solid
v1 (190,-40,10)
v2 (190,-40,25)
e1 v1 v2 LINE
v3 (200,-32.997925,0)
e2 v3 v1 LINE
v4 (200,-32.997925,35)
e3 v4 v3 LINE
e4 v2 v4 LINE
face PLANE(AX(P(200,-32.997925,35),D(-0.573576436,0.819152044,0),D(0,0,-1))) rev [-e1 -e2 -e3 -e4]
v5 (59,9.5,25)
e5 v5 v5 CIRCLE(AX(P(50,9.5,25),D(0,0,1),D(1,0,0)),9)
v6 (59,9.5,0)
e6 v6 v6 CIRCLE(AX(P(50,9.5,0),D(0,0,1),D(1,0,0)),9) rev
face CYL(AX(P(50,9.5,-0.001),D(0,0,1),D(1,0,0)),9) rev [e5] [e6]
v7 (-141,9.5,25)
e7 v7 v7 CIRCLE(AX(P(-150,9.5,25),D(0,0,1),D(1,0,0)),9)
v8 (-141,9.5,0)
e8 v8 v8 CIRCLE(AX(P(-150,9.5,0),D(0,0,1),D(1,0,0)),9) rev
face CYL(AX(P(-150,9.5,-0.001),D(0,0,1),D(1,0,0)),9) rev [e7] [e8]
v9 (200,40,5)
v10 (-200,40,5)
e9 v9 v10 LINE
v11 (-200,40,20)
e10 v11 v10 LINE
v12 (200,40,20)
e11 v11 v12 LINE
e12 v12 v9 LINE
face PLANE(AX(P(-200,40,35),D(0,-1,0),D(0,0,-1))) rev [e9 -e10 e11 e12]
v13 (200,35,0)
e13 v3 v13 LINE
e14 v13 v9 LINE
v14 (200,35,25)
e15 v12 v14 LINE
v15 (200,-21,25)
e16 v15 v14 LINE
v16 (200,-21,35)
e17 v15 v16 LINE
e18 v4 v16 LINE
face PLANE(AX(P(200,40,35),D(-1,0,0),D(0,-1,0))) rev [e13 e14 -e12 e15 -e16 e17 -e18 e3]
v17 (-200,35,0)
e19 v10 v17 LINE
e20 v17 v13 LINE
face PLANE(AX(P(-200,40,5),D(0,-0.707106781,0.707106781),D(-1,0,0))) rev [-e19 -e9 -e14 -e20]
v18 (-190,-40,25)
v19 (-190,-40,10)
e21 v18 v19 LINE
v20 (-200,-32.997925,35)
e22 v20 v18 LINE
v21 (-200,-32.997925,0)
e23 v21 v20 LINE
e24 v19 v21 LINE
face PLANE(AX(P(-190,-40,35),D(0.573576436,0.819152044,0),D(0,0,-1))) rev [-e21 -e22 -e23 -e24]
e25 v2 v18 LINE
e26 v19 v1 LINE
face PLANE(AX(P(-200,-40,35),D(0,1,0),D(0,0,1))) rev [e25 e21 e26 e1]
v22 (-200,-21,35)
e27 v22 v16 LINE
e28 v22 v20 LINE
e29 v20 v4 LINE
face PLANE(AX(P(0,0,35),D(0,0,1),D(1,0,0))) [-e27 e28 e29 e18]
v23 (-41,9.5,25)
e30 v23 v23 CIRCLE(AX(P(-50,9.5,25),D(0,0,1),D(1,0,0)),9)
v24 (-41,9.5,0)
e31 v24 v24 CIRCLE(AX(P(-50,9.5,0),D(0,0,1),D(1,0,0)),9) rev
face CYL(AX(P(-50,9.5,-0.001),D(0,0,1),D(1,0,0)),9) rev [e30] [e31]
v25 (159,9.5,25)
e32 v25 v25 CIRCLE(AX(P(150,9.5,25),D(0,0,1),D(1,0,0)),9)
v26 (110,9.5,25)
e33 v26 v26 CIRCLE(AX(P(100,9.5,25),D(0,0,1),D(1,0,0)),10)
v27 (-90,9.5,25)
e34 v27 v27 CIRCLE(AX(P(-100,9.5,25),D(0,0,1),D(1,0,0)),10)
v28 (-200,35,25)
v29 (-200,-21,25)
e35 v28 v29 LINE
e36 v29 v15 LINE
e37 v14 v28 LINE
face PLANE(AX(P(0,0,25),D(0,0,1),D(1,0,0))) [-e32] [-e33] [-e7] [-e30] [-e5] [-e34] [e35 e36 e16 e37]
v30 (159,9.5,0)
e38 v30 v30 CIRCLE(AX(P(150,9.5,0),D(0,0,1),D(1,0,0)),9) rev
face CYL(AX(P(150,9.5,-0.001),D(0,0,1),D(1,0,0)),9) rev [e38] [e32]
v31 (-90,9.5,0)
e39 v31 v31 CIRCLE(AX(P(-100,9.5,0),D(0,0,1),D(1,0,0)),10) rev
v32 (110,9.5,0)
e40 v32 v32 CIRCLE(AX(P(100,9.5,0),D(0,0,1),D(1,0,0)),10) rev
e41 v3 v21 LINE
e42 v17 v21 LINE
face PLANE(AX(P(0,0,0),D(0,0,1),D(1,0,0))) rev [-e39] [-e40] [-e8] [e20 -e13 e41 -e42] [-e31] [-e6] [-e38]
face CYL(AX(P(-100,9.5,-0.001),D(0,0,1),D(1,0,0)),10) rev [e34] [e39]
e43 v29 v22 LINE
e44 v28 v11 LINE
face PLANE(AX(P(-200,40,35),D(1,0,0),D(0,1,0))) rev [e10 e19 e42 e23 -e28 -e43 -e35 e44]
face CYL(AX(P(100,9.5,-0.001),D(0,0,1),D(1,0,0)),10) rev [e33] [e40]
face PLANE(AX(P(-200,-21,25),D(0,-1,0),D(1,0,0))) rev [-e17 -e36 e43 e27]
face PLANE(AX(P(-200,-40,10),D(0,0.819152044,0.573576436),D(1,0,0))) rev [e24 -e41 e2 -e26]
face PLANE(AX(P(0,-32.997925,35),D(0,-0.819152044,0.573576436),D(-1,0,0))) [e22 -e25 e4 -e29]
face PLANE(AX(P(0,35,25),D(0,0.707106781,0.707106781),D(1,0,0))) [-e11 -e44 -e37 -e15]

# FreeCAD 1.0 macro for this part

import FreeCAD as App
import Part
import Sketcher
from FreeCAD import Vector
Q = App.Units.Quantity


def edges_at(feature, points):
    """Names of the edges that pass closest to the given points."""
    edges = feature.Shape.Edges
    near = lambda p: min(range(len(edges)), key=lambda i: edges[i].distToShape(Part.Vertex(*p))[0])
    return sorted({f"Edge{near(p) + 1}" for p in points})


def add_polygon(sketch, points):
    """Adds a closed chain of lines whose ends are joined by coincident constraints."""
    first, n = sketch.GeometryCount, len(points)
    for a, b in zip(points, points[1:] + points[:1]):
        sketch.addGeometry(Part.LineSegment(App.Vector(*a, 0), App.Vector(*b, 0)), False)
    for i in range(n):
        sketch.addConstraint(Sketcher.Constraint("Coincident", first + i, 2, first + (i + 1) % n, 1))

doc = App.newDocument("Part")
params = doc.addObject("Spreadsheet::Sheet", "Params")
for row, (alias, value) in enumerate([
    ("sketch1_width", "400 mm"),
    ("sketch1_height", "80 mm"),
    ("pad1_length", "35 mm"),
    ("sketch2_width", "400 mm"),
    ("sketch2_height", "61 mm"),
    ("pocket1_length", "10 mm"),
    ("chamfer_size", "5 mm"),
    ("chamfer2_size", "10 mm"),
    ("chamfer2_size2", "7.002075 mm"),
    ("chamfer3_size", "10 mm"),
    ("chamfer3_size2", "7.002075 mm"),
    ("chamfer4_size", "10 mm"),
    ("chamfer4_size2", "7.002075 mm"),
    ("chamfer5_size", "10 mm"),
    ("chamfer5_size2", "7.002075 mm"),
    ("sketch3_diameter", "18 mm"),
    ("sketch4_diameter", "20 mm"),
    ("sketch5_diameter", "18 mm"),
    ("sketch6_diameter", "18 mm"),
    ("sketch7_diameter", "20 mm"),
    ("sketch8_diameter", "18 mm"),
], start=1):
    params.set(f"A{row}", alias)
    params.set(f"B{row}", "=" + value)
    params.setAlias(f"B{row}", alias)

body = doc.addObject("PartDesign::Body", "Body")

sketch1 = body.newObject("Sketcher::SketchObject", "Sketch")
sketch1.AttachmentSupport = (doc.getObject("XY_Plane"), [""])
sketch1.MapMode = "FlatFace"
add_polygon(sketch1, [(-200, 40), (-200, -40), (200, -40), (200, 40)])
sketch1.addConstraint(Sketcher.Constraint("Vertical", 0))
sketch1.addConstraint(Sketcher.Constraint("Horizontal", 1))
sketch1.addConstraint(Sketcher.Constraint("Vertical", 2))
sketch1.addConstraint(Sketcher.Constraint("Horizontal", 3))
sketch1.addConstraint(Sketcher.Constraint("Symmetric", 0, 2, 2, 2, -1, 1))
sketch1.addConstraint(Sketcher.Constraint("DistanceX", 1, 1, 1, 2, Q("400 mm")))
sketch1.addConstraint(Sketcher.Constraint("DistanceY", 0, 2, 0, 1, Q("80 mm")))
sketch1.setExpression("Constraints[9]", "Params.sketch1_width")
sketch1.setExpression("Constraints[10]", "Params.sketch1_height")
pad1 = body.newObject("PartDesign::Pad", "Pad")
pad1.Profile = sketch1
pad1.setExpression("Length", "Params.pad1_length")

sketch2 = body.newObject("Sketcher::SketchObject", "Sketch001")
sketch2.AttachmentSupport = (doc.getObject("XY_Plane"), [""])
sketch2.MapMode = "FlatFace"
sketch2.AttachmentOffset = App.Placement(Vector(0, 0, 35), App.Rotation())
add_polygon(sketch2, [(-200, 40), (-200, -21), (200, -21), (200, 40)])
sketch2.addConstraint(Sketcher.Constraint("Vertical", 0))
sketch2.addConstraint(Sketcher.Constraint("Horizontal", 1))
sketch2.addConstraint(Sketcher.Constraint("Vertical", 2))
sketch2.addConstraint(Sketcher.Constraint("Horizontal", 3))
sketch2.addConstraint(Sketcher.Constraint("DistanceX", 1, 1, 1, 2, Q("400 mm")))
sketch2.addConstraint(Sketcher.Constraint("DistanceY", 0, 2, 0, 1, Q("61 mm")))
sketch2.addConstraint(Sketcher.Constraint("DistanceX", 0, 2, -1, 1, Q("200 mm")))
sketch2.addConstraint(Sketcher.Constraint("DistanceY", 0, 2, -1, 1, Q("21 mm")))
sketch2.setExpression("Constraints[8]", "Params.sketch2_width")
sketch2.setExpression("Constraints[9]", "Params.sketch2_height")
pocket1 = body.newObject("PartDesign::Pocket", "Pocket")
pocket1.Profile = sketch2
pocket1.setExpression("Length", "Params.pocket1_length")
doc.recompute()

chamfer = body.newObject("PartDesign::Chamfer", "Chamfer")
chamfer.Base = (pocket1, edges_at(pocket1, [(0, 40, 25), (0, 40, 0)]))
chamfer.setExpression("Size", "Params.chamfer_size")
doc.recompute()

chamfer2 = body.newObject("PartDesign::Chamfer", "Chamfer001")
chamfer2.Base = (chamfer, edges_at(chamfer, [(0, -40, 35)]))
chamfer2.ChamferType = "Two distances"
chamfer2.setExpression("Size", "Params.chamfer2_size")
chamfer2.setExpression("Size2", "Params.chamfer2_size2")
doc.recompute()

chamfer3 = body.newObject("PartDesign::Chamfer", "Chamfer002")
chamfer3.Base = (chamfer2, edges_at(chamfer2, [(0, -40, 0)]))
chamfer3.ChamferType = "Two distances"
chamfer3.setExpression("Size", "Params.chamfer3_size")
chamfer3.setExpression("Size2", "Params.chamfer3_size2")
doc.recompute()

chamfer4 = body.newObject("PartDesign::Chamfer", "Chamfer003")
chamfer4.Base = (chamfer3, edges_at(chamfer3, [(-200, -40, 17.5)]))
chamfer4.ChamferType = "Two distances"
chamfer4.setExpression("Size", "Params.chamfer4_size")
chamfer4.setExpression("Size2", "Params.chamfer4_size2")
chamfer4.FlipDirection = True
doc.recompute()

chamfer5 = body.newObject("PartDesign::Chamfer", "Chamfer004")
chamfer5.Base = (chamfer4, edges_at(chamfer4, [(200, -40, 17.5)]))
chamfer5.ChamferType = "Two distances"
chamfer5.setExpression("Size", "Params.chamfer5_size")
chamfer5.setExpression("Size2", "Params.chamfer5_size2")

sketch3 = body.newObject("Sketcher::SketchObject", "Sketch002")
sketch3.AttachmentSupport = (doc.getObject("XY_Plane"), [""])
sketch3.MapMode = "FlatFace"
sketch3.AttachmentOffset = App.Placement(Vector(0, 0, 25), App.Rotation())
sketch3.addGeometry(Part.Circle(Vector(-150, 9.5, 0), Vector(0, 0, 1), 9), False)
sketch3.addConstraint(Sketcher.Constraint("Diameter", 0, Q("18 mm")))
sketch3.addConstraint(Sketcher.Constraint("DistanceX", 0, 3, -1, 1, Q("150 mm")))
sketch3.addConstraint(Sketcher.Constraint("DistanceY", -1, 1, 0, 3, Q("9.5 mm")))
sketch3.setExpression("Constraints[0]", "Params.sketch3_diameter")
pocket2 = body.newObject("PartDesign::Pocket", "Pocket001")
pocket2.Profile = sketch3
pocket2.Type = "UpToFirst"

sketch4 = body.newObject("Sketcher::SketchObject", "Sketch003")
sketch4.AttachmentSupport = (doc.getObject("XY_Plane"), [""])
sketch4.MapMode = "FlatFace"
sketch4.AttachmentOffset = App.Placement(Vector(0, 0, 25), App.Rotation())
sketch4.addGeometry(Part.Circle(Vector(-100, 9.5, 0), Vector(0, 0, 1), 10), False)
sketch4.addConstraint(Sketcher.Constraint("Diameter", 0, Q("20 mm")))
sketch4.addConstraint(Sketcher.Constraint("DistanceX", 0, 3, -1, 1, Q("100 mm")))
sketch4.addConstraint(Sketcher.Constraint("DistanceY", -1, 1, 0, 3, Q("9.5 mm")))
sketch4.setExpression("Constraints[0]", "Params.sketch4_diameter")
pocket3 = body.newObject("PartDesign::Pocket", "Pocket002")
pocket3.Profile = sketch4
pocket3.Type = "UpToFirst"

sketch5 = body.newObject("Sketcher::SketchObject", "Sketch004")
sketch5.AttachmentSupport = (doc.getObject("XY_Plane"), [""])
sketch5.MapMode = "FlatFace"
sketch5.AttachmentOffset = App.Placement(Vector(0, 0, 25), App.Rotation())
sketch5.addGeometry(Part.Circle(Vector(-50, 9.5, 0), Vector(0, 0, 1), 9), False)
sketch5.addConstraint(Sketcher.Constraint("Diameter", 0, Q("18 mm")))
sketch5.addConstraint(Sketcher.Constraint("DistanceX", 0, 3, -1, 1, Q("50 mm")))
sketch5.addConstraint(Sketcher.Constraint("DistanceY", -1, 1, 0, 3, Q("9.5 mm")))
sketch5.setExpression("Constraints[0]", "Params.sketch5_diameter")
pocket4 = body.newObject("PartDesign::Pocket", "Pocket003")
pocket4.Profile = sketch5
pocket4.Type = "UpToFirst"

sketch6 = body.newObject("Sketcher::SketchObject", "Sketch005")
sketch6.AttachmentSupport = (doc.getObject("XY_Plane"), [""])
sketch6.MapMode = "FlatFace"
sketch6.AttachmentOffset = App.Placement(Vector(0, 0, 25), App.Rotation())
sketch6.addGeometry(Part.Circle(Vector(50, 9.5, 0), Vector(0, 0, 1), 9), False)
sketch6.addConstraint(Sketcher.Constraint("Diameter", 0, Q("18 mm")))
sketch6.addConstraint(Sketcher.Constraint("DistanceX", -1, 1, 0, 3, Q("50 mm")))
sketch6.addConstraint(Sketcher.Constraint("DistanceY", -1, 1, 0, 3, Q("9.5 mm")))
sketch6.setExpression("Constraints[0]", "Params.sketch6_diameter")
pocket5 = body.newObject("PartDesign::Pocket", "Pocket004")
pocket5.Profile = sketch6
pocket5.Type = "UpToFirst"

sketch7 = body.newObject("Sketcher::SketchObject", "Sketch006")
sketch7.AttachmentSupport = (doc.getObject("XY_Plane"), [""])
sketch7.MapMode = "FlatFace"
sketch7.AttachmentOffset = App.Placement(Vector(0, 0, 25), App.Rotation())
sketch7.addGeometry(Part.Circle(Vector(100, 9.5, 0), Vector(0, 0, 1), 10), False)
sketch7.addConstraint(Sketcher.Constraint("Diameter", 0, Q("20 mm")))
sketch7.addConstraint(Sketcher.Constraint("DistanceX", -1, 1, 0, 3, Q("100 mm")))
sketch7.addConstraint(Sketcher.Constraint("DistanceY", -1, 1, 0, 3, Q("9.5 mm")))
sketch7.setExpression("Constraints[0]", "Params.sketch7_diameter")
pocket6 = body.newObject("PartDesign::Pocket", "Pocket005")
pocket6.Profile = sketch7
pocket6.Type = "UpToFirst"

sketch8 = body.newObject("Sketcher::SketchObject", "Sketch007")
sketch8.AttachmentSupport = (doc.getObject("XY_Plane"), [""])
sketch8.MapMode = "FlatFace"
sketch8.AttachmentOffset = App.Placement(Vector(0, 0, 25), App.Rotation())
sketch8.addGeometry(Part.Circle(Vector(150, 9.5, 0), Vector(0, 0, 1), 9), False)
sketch8.addConstraint(Sketcher.Constraint("Diameter", 0, Q("18 mm")))
sketch8.addConstraint(Sketcher.Constraint("DistanceX", -1, 1, 0, 3, Q("150 mm")))
sketch8.addConstraint(Sketcher.Constraint("DistanceY", -1, 1, 0, 3, Q("9.5 mm")))
sketch8.setExpression("Constraints[0]", "Params.sketch8_diameter")
pocket7 = body.newObject("PartDesign::Pocket", "Pocket006")
pocket7.Profile = sketch8
pocket7.Type = "UpToFirst"

doc.recompute()
